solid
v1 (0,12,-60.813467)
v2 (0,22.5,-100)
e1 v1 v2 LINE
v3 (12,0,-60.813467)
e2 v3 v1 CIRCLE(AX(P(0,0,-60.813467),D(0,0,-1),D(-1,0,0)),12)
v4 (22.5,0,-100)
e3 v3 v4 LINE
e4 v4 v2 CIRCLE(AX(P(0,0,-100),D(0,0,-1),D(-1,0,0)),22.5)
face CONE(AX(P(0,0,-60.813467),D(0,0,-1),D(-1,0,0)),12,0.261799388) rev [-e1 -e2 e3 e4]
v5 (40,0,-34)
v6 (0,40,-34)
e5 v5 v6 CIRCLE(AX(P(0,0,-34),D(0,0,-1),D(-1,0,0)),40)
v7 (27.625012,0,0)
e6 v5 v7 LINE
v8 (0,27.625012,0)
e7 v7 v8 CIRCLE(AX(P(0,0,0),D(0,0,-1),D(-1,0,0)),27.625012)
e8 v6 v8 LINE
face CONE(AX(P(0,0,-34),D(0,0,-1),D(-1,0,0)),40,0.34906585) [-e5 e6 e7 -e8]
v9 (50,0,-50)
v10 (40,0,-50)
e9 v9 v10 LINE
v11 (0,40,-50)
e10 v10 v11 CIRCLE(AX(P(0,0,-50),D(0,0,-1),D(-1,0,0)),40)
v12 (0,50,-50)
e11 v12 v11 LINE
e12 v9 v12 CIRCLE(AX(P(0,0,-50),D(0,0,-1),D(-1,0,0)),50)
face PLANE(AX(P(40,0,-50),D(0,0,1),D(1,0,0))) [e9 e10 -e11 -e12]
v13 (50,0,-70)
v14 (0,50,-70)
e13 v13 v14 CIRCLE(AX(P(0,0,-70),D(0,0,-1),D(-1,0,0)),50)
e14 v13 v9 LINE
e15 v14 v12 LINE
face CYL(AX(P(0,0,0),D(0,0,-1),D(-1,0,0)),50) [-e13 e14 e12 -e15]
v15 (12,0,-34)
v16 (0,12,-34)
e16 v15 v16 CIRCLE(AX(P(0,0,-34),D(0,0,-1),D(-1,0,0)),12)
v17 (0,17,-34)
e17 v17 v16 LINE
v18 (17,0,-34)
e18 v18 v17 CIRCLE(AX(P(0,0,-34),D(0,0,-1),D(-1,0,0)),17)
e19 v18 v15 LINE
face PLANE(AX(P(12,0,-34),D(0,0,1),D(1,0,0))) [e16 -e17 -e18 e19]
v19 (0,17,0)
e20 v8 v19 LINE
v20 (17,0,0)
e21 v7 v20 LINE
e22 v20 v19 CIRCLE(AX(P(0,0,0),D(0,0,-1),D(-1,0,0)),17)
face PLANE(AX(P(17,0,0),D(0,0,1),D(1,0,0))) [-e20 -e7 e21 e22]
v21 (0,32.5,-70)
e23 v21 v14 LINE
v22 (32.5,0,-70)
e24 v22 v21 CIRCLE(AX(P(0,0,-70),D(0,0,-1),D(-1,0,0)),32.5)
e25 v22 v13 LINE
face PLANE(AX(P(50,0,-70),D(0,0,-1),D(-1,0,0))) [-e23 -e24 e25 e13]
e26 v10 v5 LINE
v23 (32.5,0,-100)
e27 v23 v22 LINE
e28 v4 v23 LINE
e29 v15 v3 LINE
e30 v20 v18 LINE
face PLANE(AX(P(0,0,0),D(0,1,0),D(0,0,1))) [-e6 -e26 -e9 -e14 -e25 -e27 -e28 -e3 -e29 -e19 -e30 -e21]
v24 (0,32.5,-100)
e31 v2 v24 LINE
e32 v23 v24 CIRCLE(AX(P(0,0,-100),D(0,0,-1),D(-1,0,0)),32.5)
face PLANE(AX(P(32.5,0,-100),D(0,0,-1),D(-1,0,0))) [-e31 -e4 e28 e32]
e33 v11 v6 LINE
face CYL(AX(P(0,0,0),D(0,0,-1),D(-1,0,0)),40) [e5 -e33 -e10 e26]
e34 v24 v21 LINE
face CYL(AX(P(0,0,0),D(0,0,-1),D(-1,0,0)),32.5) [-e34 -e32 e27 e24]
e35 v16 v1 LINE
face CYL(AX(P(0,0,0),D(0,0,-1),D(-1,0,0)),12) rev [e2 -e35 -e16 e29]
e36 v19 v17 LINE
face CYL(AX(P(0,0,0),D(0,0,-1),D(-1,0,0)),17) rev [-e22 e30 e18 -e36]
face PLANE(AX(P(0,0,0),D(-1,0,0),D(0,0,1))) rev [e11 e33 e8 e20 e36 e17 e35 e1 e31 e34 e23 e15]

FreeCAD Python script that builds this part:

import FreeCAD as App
import Part
import Sketcher

V = App.Vector
Q = App.Units.Quantity

doc = App.newDocument("Part")
body = doc.addObject("PartDesign::Body", "Body")

# Sketch on YZ plane
sketch1 = body.newObject("Sketcher::SketchObject", "Sketch")
sketch1.AttachmentSupport = (doc.getObject("YZ_Plane"), [""])
sketch1.MapMode = "FlatFace"
sketch1.addGeometry([
    Part.LineSegment(V(28, 0, 0), V(17, 0, 0)),  # 0
    Part.LineSegment(V(17, 0, 0), V(17, -34, 0)),  # 1
    Part.LineSegment(V(17, -34, 0), V(12, -34, 0)),  # 2
    Part.LineSegment(V(12, -34, 0), V(12, -61, 0)),  # 3
    Part.LineSegment(V(12, -61, 0), V(22, -100, 0)),  # 4
    Part.LineSegment(V(22, -100, 0), V(32, -100, 0)),  # 5
    Part.LineSegment(V(32, -100, 0), V(32, -70, 0)),  # 6
    Part.LineSegment(V(32, -70, 0), V(50, -70, 0)),  # 7
    Part.LineSegment(V(50, -70, 0), V(50, -50, 0)),  # 8
    Part.LineSegment(V(50, -50, 0), V(40, -50, 0)),  # 9
    Part.LineSegment(V(40, -50, 0), V(40, -34, 0)),  # 10
    Part.LineSegment(V(40, -34, 0), V(28, 0, 0)),  # 11
], False)
sketch1.addConstraint([
    Sketcher.Constraint("Coincident", 0, 2, 1, 1),
    Sketcher.Constraint("Coincident", 1, 2, 2, 1),
    Sketcher.Constraint("Coincident", 2, 2, 3, 1),
    Sketcher.Constraint("Coincident", 3, 2, 4, 1),
    Sketcher.Constraint("Coincident", 4, 2, 5, 1),
    Sketcher.Constraint("Coincident", 5, 2, 6, 1),
    Sketcher.Constraint("Coincident", 6, 2, 7, 1),
    Sketcher.Constraint("Coincident", 7, 2, 8, 1),
    Sketcher.Constraint("Coincident", 8, 2, 9, 1),
    Sketcher.Constraint("Coincident", 9, 2, 10, 1),
    Sketcher.Constraint("Coincident", 10, 2, 11, 1),
    Sketcher.Constraint("Coincident", 11, 2, 0, 1),
    Sketcher.Constraint("Horizontal", 0),
    Sketcher.Constraint("Vertical", 1),
    Sketcher.Constraint("Horizontal", 2),
    Sketcher.Constraint("Vertical", 3),
    Sketcher.Constraint("Horizontal", 5),
    Sketcher.Constraint("Vertical", 6),
    Sketcher.Constraint("Horizontal", 7),
    Sketcher.Constraint("Vertical", 8),
    Sketcher.Constraint("Horizontal", 9),
    Sketcher.Constraint("Vertical", 10),
    Sketcher.Constraint("PointOnObject", 0, 2, -1),
    Sketcher.Constraint("Horizontal", 2, 2, 10, 2),
    Sketcher.Constraint("Equal", 5, 9),
    Sketcher.Constraint("DistanceX", 2, 2, 2, 1, Q("5 mm")),
    Sketcher.Constraint("DistanceX", 5, 1, 5, 2, Q("10 mm")),
    Sketcher.Constraint("DistanceY", 1, 2, 1, 1, Q("34 mm")),
    Sketcher.Constraint("DistanceY", 6, 1, 6, 2, Q("30 mm")),
    Sketcher.Constraint("DistanceY", 8, 1, 8, 2, Q("20 mm")),
    Sketcher.Constraint("DistanceY", 10, 1, 10, 2, Q("16 mm")),
    Sketcher.Constraint("Angle", 4, Q("-75 deg")),
    Sketcher.Constraint("Angle", 11, Q("110 deg")),
    Sketcher.Constraint("DistanceX", 7, 1, 7, 2, Q("17.5 mm")),
    Sketcher.Constraint("DistanceX", -1, 1, 0, 2, Q("17 mm")),
    Sketcher.Constraint("DistanceX", -1, 1, 7, 2, Q("50 mm")),
])
revolution = body.newObject("PartDesign::Revolution", "Revolution")
revolution.Profile = sketch1
revolution.ReferenceAxis = (sketch1, ["V_Axis"])
revolution.Angle = 270

doc.recompute()
